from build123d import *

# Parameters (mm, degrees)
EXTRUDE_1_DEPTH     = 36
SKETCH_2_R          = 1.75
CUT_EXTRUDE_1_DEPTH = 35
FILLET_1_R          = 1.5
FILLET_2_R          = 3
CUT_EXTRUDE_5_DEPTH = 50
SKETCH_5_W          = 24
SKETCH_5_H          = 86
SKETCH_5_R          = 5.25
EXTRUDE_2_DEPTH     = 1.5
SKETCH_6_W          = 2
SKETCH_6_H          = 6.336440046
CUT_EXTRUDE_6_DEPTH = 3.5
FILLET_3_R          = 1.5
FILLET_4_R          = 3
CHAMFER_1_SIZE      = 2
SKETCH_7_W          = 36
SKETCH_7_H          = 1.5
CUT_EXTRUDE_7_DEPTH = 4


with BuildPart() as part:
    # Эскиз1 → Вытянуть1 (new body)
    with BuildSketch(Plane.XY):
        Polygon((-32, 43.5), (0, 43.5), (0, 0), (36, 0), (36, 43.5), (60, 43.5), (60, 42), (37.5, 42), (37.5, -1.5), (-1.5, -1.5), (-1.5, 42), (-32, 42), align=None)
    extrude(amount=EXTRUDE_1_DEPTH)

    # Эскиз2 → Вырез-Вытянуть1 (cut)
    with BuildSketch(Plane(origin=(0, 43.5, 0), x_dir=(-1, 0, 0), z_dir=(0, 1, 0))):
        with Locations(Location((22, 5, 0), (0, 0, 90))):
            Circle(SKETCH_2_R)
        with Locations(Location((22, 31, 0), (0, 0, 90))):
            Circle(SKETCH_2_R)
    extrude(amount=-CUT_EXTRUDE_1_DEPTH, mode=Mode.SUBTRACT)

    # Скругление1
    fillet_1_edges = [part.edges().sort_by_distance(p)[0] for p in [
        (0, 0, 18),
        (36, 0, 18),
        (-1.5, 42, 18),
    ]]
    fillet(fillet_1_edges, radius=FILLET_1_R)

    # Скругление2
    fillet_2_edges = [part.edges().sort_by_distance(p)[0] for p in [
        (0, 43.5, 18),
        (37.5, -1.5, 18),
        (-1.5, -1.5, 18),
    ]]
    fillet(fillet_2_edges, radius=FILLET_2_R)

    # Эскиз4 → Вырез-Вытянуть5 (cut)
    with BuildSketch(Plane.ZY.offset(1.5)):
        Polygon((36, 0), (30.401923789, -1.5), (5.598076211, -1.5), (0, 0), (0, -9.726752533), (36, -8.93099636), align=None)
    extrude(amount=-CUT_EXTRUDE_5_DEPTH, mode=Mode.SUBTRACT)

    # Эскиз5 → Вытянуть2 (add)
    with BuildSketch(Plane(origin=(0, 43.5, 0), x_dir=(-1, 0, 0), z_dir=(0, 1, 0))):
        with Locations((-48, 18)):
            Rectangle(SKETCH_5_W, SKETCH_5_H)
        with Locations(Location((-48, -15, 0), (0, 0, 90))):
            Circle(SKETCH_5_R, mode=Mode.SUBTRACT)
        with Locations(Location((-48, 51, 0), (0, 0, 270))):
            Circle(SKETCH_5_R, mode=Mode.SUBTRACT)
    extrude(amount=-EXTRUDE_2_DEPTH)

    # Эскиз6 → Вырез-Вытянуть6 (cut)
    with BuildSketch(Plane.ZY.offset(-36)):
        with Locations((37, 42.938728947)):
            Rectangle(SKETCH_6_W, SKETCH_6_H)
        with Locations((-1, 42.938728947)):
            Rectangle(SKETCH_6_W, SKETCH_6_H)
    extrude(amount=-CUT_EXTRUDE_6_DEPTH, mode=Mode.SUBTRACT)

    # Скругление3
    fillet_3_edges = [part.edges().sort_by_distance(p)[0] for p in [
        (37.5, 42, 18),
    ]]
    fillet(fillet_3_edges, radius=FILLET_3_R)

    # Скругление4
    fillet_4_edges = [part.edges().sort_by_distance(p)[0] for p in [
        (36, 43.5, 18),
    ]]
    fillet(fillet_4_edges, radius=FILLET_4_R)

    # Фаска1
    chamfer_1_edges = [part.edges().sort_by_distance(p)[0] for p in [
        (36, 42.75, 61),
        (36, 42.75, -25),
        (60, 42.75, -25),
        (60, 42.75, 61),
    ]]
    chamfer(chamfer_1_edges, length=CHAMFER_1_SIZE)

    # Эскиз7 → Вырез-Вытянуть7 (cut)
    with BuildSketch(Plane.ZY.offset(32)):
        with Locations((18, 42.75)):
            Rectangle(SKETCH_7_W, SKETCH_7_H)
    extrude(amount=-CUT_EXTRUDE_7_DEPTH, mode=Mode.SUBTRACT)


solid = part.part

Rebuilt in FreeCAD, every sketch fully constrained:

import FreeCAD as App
import Part
import Sketcher
Q = App.Units.Quantity


def edges_at(feature, points):
    """Names of the edges that pass closest to the given points."""
    edges = feature.Shape.Edges
    near = lambda p: min(range(len(edges)), key=lambda i: edges[i].distToShape(Part.Vertex(*p))[0])
    return sorted({f"Edge{near(p) + 1}" for p in points})


def add_polygon(sketch, points):
    """Adds a closed chain of lines whose ends are joined by coincident constraints."""
    first, n = sketch.GeometryCount, len(points)
    for a, b in zip(points, points[1:] + points[:1]):
        sketch.addGeometry(Part.LineSegment(App.Vector(*a, 0), App.Vector(*b, 0)), False)
    for i in range(n):
        sketch.addConstraint(Sketcher.Constraint("Coincident", first + i, 2, first + (i + 1) % n, 1))

doc = App.newDocument("Part")
body = doc.addObject("PartDesign::Body", "Body")

# Sketch on XY plane
sketch1 = body.newObject("Sketcher::SketchObject", "Sketch")
sketch1.AttachmentSupport = (doc.getObject("XY_Plane"), [""])
sketch1.MapMode = "FlatFace"
add_polygon(sketch1, [(0, 43.5), (-32, 43.5), (-32, 42), (-1.5, 42), (-1.5, -1.5), (37.5, -1.5), (37.5, 42), (60, 42), (60, 43.5), (36, 43.5), (36, 0), (0, 0)])  # lines 0-11
sketch1.addConstraint([
    Sketcher.Constraint("Horizontal", 0),
    Sketcher.Constraint("Vertical", 1),
    Sketcher.Constraint("Horizontal", 2),
    Sketcher.Constraint("Vertical", 3),
    Sketcher.Constraint("Horizontal", 4),
    Sketcher.Constraint("Vertical", 5),
    Sketcher.Constraint("Horizontal", 6),
    Sketcher.Constraint("Vertical", 7),
    Sketcher.Constraint("Horizontal", 8),
    Sketcher.Constraint("Vertical", 9),
    Sketcher.Constraint("Horizontal", 10),
    Sketcher.Constraint("Vertical", 11),
    Sketcher.Constraint("Coincident", 10, 2, -1, 1),
    Sketcher.Constraint("Horizontal", 2, 2, 5, 2),
    Sketcher.Constraint("Horizontal", 0, 2, 7, 2),
    Sketcher.Constraint("Equal", 5, 9),
    Sketcher.Constraint("DistanceX", 0, 2, 0, 1, Q("32 mm")),
    Sketcher.Constraint("DistanceX", 4, 1, 4, 2, Q("39 mm")),
    Sketcher.Constraint("DistanceX", 8, 2, 8, 1, Q("24 mm")),
    Sketcher.Constraint("DistanceX", 10, 2, 10, 1, Q("36 mm")),
    Sketcher.Constraint("DistanceX", 2, 1, 2, 2, Q("30.5 mm")),
    Sketcher.Constraint("DistanceY", 1, 2, 1, 1, Q("1.5 mm")),
    Sketcher.Constraint("DistanceY", 3, 2, 3, 1, Q("43.5 mm")),
])
pad1 = body.newObject("PartDesign::Pad", "Pad")
pad1.Profile = sketch1
pad1.Length = 36

# Sketch on XZ plane
sketch2 = body.newObject("Sketcher::SketchObject", "Sketch001")
sketch2.AttachmentSupport = (doc.getObject("XZ_Plane"), [""])
sketch2.MapMode = "FlatFace"
sketch2.AttachmentOffset = App.Placement(App.Vector(0, 0, -43.5), App.Rotation())
sketch2.addGeometry([
    Part.Circle(App.Vector(-22, 5, 0), App.Vector(0, 0, 1), 1.75),
    Part.Circle(App.Vector(-22, 31, 0), App.Vector(0, 0, 1), 1.75),
], False)
sketch2.addConstraint([
    Sketcher.Constraint("Equal", 0, 1),
    Sketcher.Constraint("Vertical", 0, 3, 1, 3),
    Sketcher.Constraint("Diameter", 0, Q("3.5 mm")),
    Sketcher.Constraint("DistanceX", 0, 3, -1, 1, Q("22 mm")),
    Sketcher.Constraint("DistanceY", -1, 1, 0, 3, Q("5 mm")),
    Sketcher.Constraint("DistanceY", -1, 1, 1, 3, Q("31 mm")),
])
pocket1 = body.newObject("PartDesign::Pocket", "Pocket")
pocket1.Profile = sketch2
pocket1.Length = 35
pocket1.Reversed = True
doc.recompute()

fillet = body.newObject("PartDesign::Fillet", "Fillet")
fillet.Base = (pocket1, edges_at(pocket1, [(0, 0, 18), (36, 0, 18), (-1.5, 42, 18)]))
fillet.Radius = 1.5
doc.recompute()

fillet2 = body.newObject("PartDesign::Fillet", "Fillet001")
fillet2.Base = (fillet, edges_at(fillet, [(0, 43.5, 18), (37.5, -1.5, 18), (-1.5, -1.5, 18)]))
fillet2.Radius = 3

# Sketch on YZ plane
sketch3 = body.newObject("Sketcher::SketchObject", "Sketch002")
sketch3.AttachmentSupport = (doc.getObject("YZ_Plane"), [""])
sketch3.MapMode = "FlatFace"
sketch3.AttachmentOffset = App.Placement(App.Vector(0, 0, -1.5), App.Rotation())
add_polygon(sketch3, [(0, 36), (-1.5, 30.401924), (-1.5, 5.598076), (0, 0), (-9.726753, 0), (-8.930996, 36)])  # lines 0-5
sketch3.addConstraint([
    Sketcher.Constraint("Vertical", 1),
    Sketcher.Constraint("Horizontal", 3),
    Sketcher.Constraint("Horizontal", 5),
    Sketcher.Constraint("Coincident", 2, 2, -1, 1),
    Sketcher.Constraint("PointOnObject", 5, 2, -2),
    Sketcher.Constraint("Equal", 0, 2),
    Sketcher.Constraint("Angle", 0, Q("-105 deg")),
    Sketcher.Constraint("DistanceY", -1, 1, 4, 2, Q("36 mm")),
    Sketcher.Constraint("DistanceX", 0, 2, -1, 1, Q("1.5 mm")),
    Sketcher.Constraint("DistanceX", 3, 2, 3, 1, Q("9.726753 mm")),
    Sketcher.Constraint("DistanceX", 5, 1, 5, 2, Q("8.930996 mm")),
])
pocket2 = body.newObject("PartDesign::Pocket", "Pocket001")
pocket2.Profile = sketch3
pocket2.Length = 50
pocket2.Reversed = True

# Sketch on XZ plane
sketch4 = body.newObject("Sketcher::SketchObject", "Sketch003")
sketch4.AttachmentSupport = (doc.getObject("XZ_Plane"), [""])
sketch4.MapMode = "FlatFace"
sketch4.AttachmentOffset = App.Placement(App.Vector(0, 0, -43.5), App.Rotation())
add_polygon(sketch4, [(60, 61), (60, -25), (36, -25), (36, 61)])  # lines 0-3
sketch4.addGeometry(Part.Circle(App.Vector(48, -15, 0), App.Vector(0, 0, 1), 5.25), False)  # 4
sketch4.addGeometry(Part.Circle(App.Vector(48, 51, 0), App.Vector(0, 0, 1), 5.25), False)  # 5
sketch4.addConstraint([
    Sketcher.Constraint("Vertical", 0),
    Sketcher.Constraint("Horizontal", 1),
    Sketcher.Constraint("Vertical", 2),
    Sketcher.Constraint("Horizontal", 3),
    Sketcher.Constraint("Equal", 4, 5),
    Sketcher.Constraint("Vertical", 4, 3, 5, 3),
    Sketcher.Constraint("Diameter", 4, Q("10.5 mm")),
    Sketcher.Constraint("DistanceX", 1, 2, 1, 1, Q("24 mm")),
    Sketcher.Constraint("DistanceY", 0, 2, 0, 1, Q("86 mm")),
    Sketcher.Constraint("DistanceX", -1, 1, 4, 3, Q("48 mm")),
    Sketcher.Constraint("DistanceY", 4, 3, -1, 1, Q("15 mm")),
    Sketcher.Constraint("DistanceY", -1, 1, 5, 3, Q("51 mm")),
    Sketcher.Constraint("DistanceX", -1, 1, 0, 2, Q("60 mm")),
    Sketcher.Constraint("DistanceY", 0, 2, -1, 1, Q("25 mm")),
])
pad2 = body.newObject("PartDesign::Pad", "Pad001")
pad2.Profile = sketch4
pad2.Length = 1.5

# Sketch on YZ plane
sketch5 = body.newObject("Sketcher::SketchObject", "Sketch004")
sketch5.AttachmentSupport = (doc.getObject("YZ_Plane"), [""])
sketch5.MapMode = "FlatFace"
sketch5.AttachmentOffset = App.Placement(App.Vector(0, 0, 36), App.Rotation())
add_polygon(sketch5, [(46.106949, 36), (39.770509, 36), (39.770509, 38), (46.106949, 38)])  # lines 0-3
add_polygon(sketch5, [(46.106949, -2), (39.770509, -2), (39.770509, 0), (46.106949, 0)])  # lines 4-7
sketch5.addConstraint([
    Sketcher.Constraint("Horizontal", 0),
    Sketcher.Constraint("Vertical", 1),
    Sketcher.Constraint("Horizontal", 2),
    Sketcher.Constraint("Vertical", 3),
    Sketcher.Constraint("Horizontal", 4),
    Sketcher.Constraint("Vertical", 5),
    Sketcher.Constraint("Horizontal", 6),
    Sketcher.Constraint("Vertical", 7),
    Sketcher.Constraint("PointOnObject", 5, 2, -1),
    Sketcher.Constraint("Vertical", 1, 2, 4, 2),
    Sketcher.Constraint("Vertical", 3, 2, 6, 2),
    Sketcher.Constraint("Equal", 3, 5),
    Sketcher.Constraint("DistanceY", 1, 1, 1, 2, Q("2 mm")),
    Sketcher.Constraint("DistanceY", -1, 1, 0, 2, Q("36 mm")),
    Sketcher.Constraint("DistanceX", 0, 2, 0, 1, Q("6.33644 mm")),
    Sketcher.Constraint("DistanceX", -1, 1, 0, 2, Q("39.770509 mm")),
])
pocket3 = body.newObject("PartDesign::Pocket", "Pocket002")
pocket3.Profile = sketch5
pocket3.Length = 3.5
pocket3.Reversed = True
doc.recompute()

fillet3 = body.newObject("PartDesign::Fillet", "Fillet002")
fillet3.Base = (pocket3, edges_at(pocket3, [(37.5, 42, 18)]))
fillet3.Radius = 1.5
doc.recompute()

fillet4 = body.newObject("PartDesign::Fillet", "Fillet003")
fillet4.Base = (fillet3, edges_at(fillet3, [(36, 43.5, 18)]))
fillet4.Radius = 3
doc.recompute()

chamfer = body.newObject("PartDesign::Chamfer", "Chamfer")
chamfer.Base = (fillet4, edges_at(fillet4, [
    (36, 42.75, 61),
    (36, 42.75, -25),
    (60, 42.75, -25),
    (60, 42.75, 61),
]))
chamfer.Size = 2

# Sketch on YZ plane
sketch6 = body.newObject("Sketcher::SketchObject", "Sketch005")
sketch6.AttachmentSupport = (doc.getObject("YZ_Plane"), [""])
sketch6.MapMode = "FlatFace"
sketch6.AttachmentOffset = App.Placement(App.Vector(0, 0, -32), App.Rotation())
add_polygon(sketch6, [(43.5, 0), (42, 0), (42, 36), (43.5, 36)])  # lines 0-3
sketch6.addConstraint([
    Sketcher.Constraint("Horizontal", 0),
    Sketcher.Constraint("Vertical", 1),
    Sketcher.Constraint("Horizontal", 2),
    Sketcher.Constraint("Vertical", 3),
    Sketcher.Constraint("PointOnObject", 0, 2, -1),
    Sketcher.Constraint("DistanceY", 1, 1, 1, 2, Q("36 mm")),
    Sketcher.Constraint("DistanceX", 0, 2, 0, 1, Q("1.5 mm")),
    Sketcher.Constraint("DistanceX", -1, 1, 0, 2, Q("42 mm")),
])
pocket4 = body.newObject("PartDesign::Pocket", "Pocket003")
pocket4.Profile = sketch6
pocket4.Length = 4
pocket4.Reversed = True

doc.recompute()
